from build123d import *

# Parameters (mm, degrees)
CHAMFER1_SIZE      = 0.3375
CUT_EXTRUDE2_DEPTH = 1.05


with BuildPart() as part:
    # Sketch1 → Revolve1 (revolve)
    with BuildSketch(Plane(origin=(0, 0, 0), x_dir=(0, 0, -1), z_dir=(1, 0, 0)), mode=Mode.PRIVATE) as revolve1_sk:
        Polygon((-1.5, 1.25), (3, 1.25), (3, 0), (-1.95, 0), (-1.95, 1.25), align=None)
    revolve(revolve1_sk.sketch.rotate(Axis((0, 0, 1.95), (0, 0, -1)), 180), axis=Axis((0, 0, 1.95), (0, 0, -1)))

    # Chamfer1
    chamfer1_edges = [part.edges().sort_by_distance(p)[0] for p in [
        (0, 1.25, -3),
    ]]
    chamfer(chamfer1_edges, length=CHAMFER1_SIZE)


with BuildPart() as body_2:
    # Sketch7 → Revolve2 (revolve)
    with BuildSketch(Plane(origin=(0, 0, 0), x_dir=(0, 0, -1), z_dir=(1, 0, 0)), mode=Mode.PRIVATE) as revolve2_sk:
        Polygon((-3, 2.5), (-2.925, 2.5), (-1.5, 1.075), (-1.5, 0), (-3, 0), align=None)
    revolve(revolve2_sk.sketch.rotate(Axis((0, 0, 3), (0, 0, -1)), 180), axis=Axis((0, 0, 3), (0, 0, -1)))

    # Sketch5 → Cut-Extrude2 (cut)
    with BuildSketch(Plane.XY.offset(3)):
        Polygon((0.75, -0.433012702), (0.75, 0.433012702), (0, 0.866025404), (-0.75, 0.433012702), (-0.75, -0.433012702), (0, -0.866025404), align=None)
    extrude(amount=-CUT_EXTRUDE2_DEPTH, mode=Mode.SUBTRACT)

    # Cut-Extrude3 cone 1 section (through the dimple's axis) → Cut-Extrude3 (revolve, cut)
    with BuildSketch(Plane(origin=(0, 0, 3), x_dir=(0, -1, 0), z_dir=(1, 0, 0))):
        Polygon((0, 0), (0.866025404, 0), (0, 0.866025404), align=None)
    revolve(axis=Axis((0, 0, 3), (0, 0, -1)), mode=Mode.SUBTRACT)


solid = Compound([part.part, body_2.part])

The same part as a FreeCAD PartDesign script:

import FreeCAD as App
import Part
import Sketcher
Q = App.Units.Quantity


def edges_at(feature, points):
    """Names of the edges that pass closest to the given points."""
    edges = feature.Shape.Edges
    near = lambda p: min(range(len(edges)), key=lambda i: edges[i].distToShape(Part.Vertex(*p))[0])
    return sorted({f"Edge{near(p) + 1}" for p in points})

doc = App.newDocument("Part")
body = doc.addObject("PartDesign::Body", "Body")

# Sketch on YZ plane
sketch1 = doc.addObject("Sketcher::SketchObject", "Sketch")
body.addObject(sketch1)
sketch1.AttachmentSupport = (doc.YZ_Plane, [""])
sketch1.MapMode = "FlatFace"
sketch1.addGeometry([
    Part.LineSegment(App.Vector(1.2, -3, 0), App.Vector(1.2, 1.9, 0)),
    Part.LineSegment(App.Vector(1.2, 1.9, 0), App.Vector(0, 1.9, 0)),
    Part.LineSegment(App.Vector(0, 1.9, 0), App.Vector(0, -3, 0)),
    Part.LineSegment(App.Vector(0, -3, 0), App.Vector(1.2, -3, 0)),
], False)
sketch1.addConstraint([
    Sketcher.Constraint("Coincident", 0, 2, 1, 1),
    Sketcher.Constraint("Coincident", 1, 2, 2, 1),
    Sketcher.Constraint("Coincident", 2, 2, 3, 1),
    Sketcher.Constraint("Coincident", 3, 2, 0, 1),
    Sketcher.Constraint("Vertical", 0),
    Sketcher.Constraint("Horizontal", 1),
    Sketcher.Constraint("Vertical", 2),
    Sketcher.Constraint("Horizontal", 3),
    Sketcher.Constraint("PointOnObject", 1, 2, -2),
    Sketcher.Constraint("DistanceY", 2, 2, -1, 1, 3.0),
    Sketcher.Constraint("DistanceX", 1, 2, 1, 1, 1.25),
    Sketcher.Constraint("DistanceY", 0, 1, 0, 2, 4.95),
])
revolution = doc.addObject("PartDesign::Revolution", "Revolution")
body.addObject(revolution)
revolution.Profile = sketch1
revolution.ReferenceAxis = (sketch1, ["V_Axis"])
revolution.Angle = 360
doc.recompute()

chamfer = doc.addObject("PartDesign::Chamfer", "Chamfer")
body.addObject(chamfer)
chamfer.Base = (revolution, edges_at(revolution, [(0, 1.25, -3)]))
chamfer.Size = 0.3375
body2 = doc.addObject("PartDesign::Body", "Body001")

# Sketch on YZ plane
sketch2 = doc.addObject("Sketcher::SketchObject", "Sketch001")
body2.addObject(sketch2)
sketch2.AttachmentSupport = (doc.getObject("YZ_Plane001"), [""])
sketch2.MapMode = "FlatFace"
sketch2.addGeometry([
    Part.LineSegment(App.Vector(2.5, 2.92, 0), App.Vector(2.5, 3, 0)),  # 0
    Part.LineSegment(App.Vector(2.5, 3, 0), App.Vector(0, 3, 0)),  # 1
    Part.LineSegment(App.Vector(0, 3, 0), App.Vector(0, 1.5, 0)),  # 2
    Part.LineSegment(App.Vector(0, 1.5, 0), App.Vector(1.07, 1.5, 0)),  # 3
    Part.LineSegment(App.Vector(1.07, 1.5, 0), App.Vector(2.5, 2.92, 0)),  # 4
], False)
sketch2.addConstraint([
    Sketcher.Constraint("Coincident", 0, 2, 1, 1),
    Sketcher.Constraint("Coincident", 1, 2, 2, 1),
    Sketcher.Constraint("Coincident", 2, 2, 3, 1),
    Sketcher.Constraint("Coincident", 3, 2, 4, 1),
    Sketcher.Constraint("Coincident", 4, 2, 0, 1),
    Sketcher.Constraint("Vertical", 0),
    Sketcher.Constraint("Horizontal", 1),
    Sketcher.Constraint("Vertical", 2),
    Sketcher.Constraint("Horizontal", 3),
    Sketcher.Constraint("PointOnObject", 1, 2, -2),
    Sketcher.Constraint("Angle", 4, Q("45 deg")),
    Sketcher.Constraint("DistanceX", 1, 2, 1, 1, 2.5),
    Sketcher.Constraint("DistanceY", 2, 2, 2, 1, 1.5),
    Sketcher.Constraint("DistanceY", -1, 1, 0, 2, 3.0),
    Sketcher.Constraint("DistanceX", 3, 1, 3, 2, 1.075),
])
revolution2 = doc.addObject("PartDesign::Revolution", "Revolution001")
body2.addObject(revolution2)
revolution2.Profile = sketch2
revolution2.ReferenceAxis = (sketch2, ["V_Axis"])
revolution2.Angle = 360

# Sketch on XY plane
sketch3 = doc.addObject("Sketcher::SketchObject", "Sketch002")
body2.addObject(sketch3)
sketch3.AttachmentSupport = (doc.getObject("XY_Plane001"), [""])
sketch3.MapMode = "FlatFace"
sketch3.AttachmentOffset = App.Placement(App.Vector(0, 0, 3), App.Rotation())
sketch3.addGeometry([
    Part.LineSegment(App.Vector(0.8, -0.4, 0), App.Vector(0.8, 0.4, 0)),  # 0
    Part.LineSegment(App.Vector(0.8, 0.4, 0), App.Vector(0, 0.9, 0)),  # 1
    Part.LineSegment(App.Vector(0, 0.9, 0), App.Vector(-0.8, 0.4, 0)),  # 2
    Part.LineSegment(App.Vector(-0.8, 0.4, 0), App.Vector(-0.8, -0.4, 0)),  # 3
    Part.LineSegment(App.Vector(-0.8, -0.4, 0), App.Vector(0, -0.9, 0)),  # 4
    Part.LineSegment(App.Vector(0, -0.9, 0), App.Vector(0.8, -0.4, 0)),  # 5
], False)
sketch3.addConstraint([
    Sketcher.Constraint("Coincident", 0, 2, 1, 1),
    Sketcher.Constraint("Coincident", 1, 2, 2, 1),
    Sketcher.Constraint("Coincident", 2, 2, 3, 1),
    Sketcher.Constraint("Coincident", 3, 2, 4, 1),
    Sketcher.Constraint("Coincident", 4, 2, 5, 1),
    Sketcher.Constraint("Coincident", 5, 2, 0, 1),
    Sketcher.Constraint("Vertical", 0),
    Sketcher.Constraint("Vertical", 3),
    Sketcher.Constraint("Symmetric", 0, 2, 3, 2, -1, 1),
    Sketcher.Constraint("Symmetric", 1, 2, 4, 2, -1, 1),
    Sketcher.Constraint("PointOnObject", 1, 2, -2),
    Sketcher.Constraint("Parallel", 2, 5),
    Sketcher.Constraint("Horizontal", 0, 2, 2, 2),
    Sketcher.Constraint("Angle", 1, Q("150 deg")),
    Sketcher.Constraint("DistanceX", 2, 2, 0, 2, 1.5),
    Sketcher.Constraint("DistanceY", 0, 1, 0, 2, 0.866025),
])
pocket1 = doc.addObject("PartDesign::Pocket", "Pocket")
body2.addObject(pocket1)
pocket1.Profile = sketch3
pocket1.Length = 1.05

# Sketch on YZ plane
sketch4 = doc.addObject("Sketcher::SketchObject", "Sketch003")
body2.addObject(sketch4)
sketch4.AttachmentSupport = (doc.getObject("YZ_Plane001"), [""])
sketch4.MapMode = "FlatFace"
sketch4.addGeometry([
    Part.LineSegment(App.Vector(0, 3, 0), App.Vector(-0.9, 3, 0)),
    Part.LineSegment(App.Vector(-0.9, 3, 0), App.Vector(0, 2.1, 0)),
    Part.LineSegment(App.Vector(0, 2.1, 0), App.Vector(0, 3, 0)),
], False)
sketch4.addConstraint([
    Sketcher.Constraint("Coincident", 0, 2, 1, 1),
    Sketcher.Constraint("Coincident", 1, 2, 2, 1),
    Sketcher.Constraint("Coincident", 2, 2, 0, 1),
    Sketcher.Constraint("Horizontal", 0),
    Sketcher.Constraint("Vertical", 2),
    Sketcher.Constraint("PointOnObject", 1, 2, -2),
    Sketcher.Constraint("Equal", 0, 2),
    Sketcher.Constraint("DistanceY", -1, 1, 0, 2, 3.0),
    Sketcher.Constraint("DistanceX", 0, 2, 0, 1, 0.866025),
])
groove = doc.addObject("PartDesign::Groove", "Groove")
body2.addObject(groove)
groove.Profile = sketch4
groove.ReferenceAxis = (sketch4, ["V_Axis"])
groove.Angle = 360

doc.recompute()
